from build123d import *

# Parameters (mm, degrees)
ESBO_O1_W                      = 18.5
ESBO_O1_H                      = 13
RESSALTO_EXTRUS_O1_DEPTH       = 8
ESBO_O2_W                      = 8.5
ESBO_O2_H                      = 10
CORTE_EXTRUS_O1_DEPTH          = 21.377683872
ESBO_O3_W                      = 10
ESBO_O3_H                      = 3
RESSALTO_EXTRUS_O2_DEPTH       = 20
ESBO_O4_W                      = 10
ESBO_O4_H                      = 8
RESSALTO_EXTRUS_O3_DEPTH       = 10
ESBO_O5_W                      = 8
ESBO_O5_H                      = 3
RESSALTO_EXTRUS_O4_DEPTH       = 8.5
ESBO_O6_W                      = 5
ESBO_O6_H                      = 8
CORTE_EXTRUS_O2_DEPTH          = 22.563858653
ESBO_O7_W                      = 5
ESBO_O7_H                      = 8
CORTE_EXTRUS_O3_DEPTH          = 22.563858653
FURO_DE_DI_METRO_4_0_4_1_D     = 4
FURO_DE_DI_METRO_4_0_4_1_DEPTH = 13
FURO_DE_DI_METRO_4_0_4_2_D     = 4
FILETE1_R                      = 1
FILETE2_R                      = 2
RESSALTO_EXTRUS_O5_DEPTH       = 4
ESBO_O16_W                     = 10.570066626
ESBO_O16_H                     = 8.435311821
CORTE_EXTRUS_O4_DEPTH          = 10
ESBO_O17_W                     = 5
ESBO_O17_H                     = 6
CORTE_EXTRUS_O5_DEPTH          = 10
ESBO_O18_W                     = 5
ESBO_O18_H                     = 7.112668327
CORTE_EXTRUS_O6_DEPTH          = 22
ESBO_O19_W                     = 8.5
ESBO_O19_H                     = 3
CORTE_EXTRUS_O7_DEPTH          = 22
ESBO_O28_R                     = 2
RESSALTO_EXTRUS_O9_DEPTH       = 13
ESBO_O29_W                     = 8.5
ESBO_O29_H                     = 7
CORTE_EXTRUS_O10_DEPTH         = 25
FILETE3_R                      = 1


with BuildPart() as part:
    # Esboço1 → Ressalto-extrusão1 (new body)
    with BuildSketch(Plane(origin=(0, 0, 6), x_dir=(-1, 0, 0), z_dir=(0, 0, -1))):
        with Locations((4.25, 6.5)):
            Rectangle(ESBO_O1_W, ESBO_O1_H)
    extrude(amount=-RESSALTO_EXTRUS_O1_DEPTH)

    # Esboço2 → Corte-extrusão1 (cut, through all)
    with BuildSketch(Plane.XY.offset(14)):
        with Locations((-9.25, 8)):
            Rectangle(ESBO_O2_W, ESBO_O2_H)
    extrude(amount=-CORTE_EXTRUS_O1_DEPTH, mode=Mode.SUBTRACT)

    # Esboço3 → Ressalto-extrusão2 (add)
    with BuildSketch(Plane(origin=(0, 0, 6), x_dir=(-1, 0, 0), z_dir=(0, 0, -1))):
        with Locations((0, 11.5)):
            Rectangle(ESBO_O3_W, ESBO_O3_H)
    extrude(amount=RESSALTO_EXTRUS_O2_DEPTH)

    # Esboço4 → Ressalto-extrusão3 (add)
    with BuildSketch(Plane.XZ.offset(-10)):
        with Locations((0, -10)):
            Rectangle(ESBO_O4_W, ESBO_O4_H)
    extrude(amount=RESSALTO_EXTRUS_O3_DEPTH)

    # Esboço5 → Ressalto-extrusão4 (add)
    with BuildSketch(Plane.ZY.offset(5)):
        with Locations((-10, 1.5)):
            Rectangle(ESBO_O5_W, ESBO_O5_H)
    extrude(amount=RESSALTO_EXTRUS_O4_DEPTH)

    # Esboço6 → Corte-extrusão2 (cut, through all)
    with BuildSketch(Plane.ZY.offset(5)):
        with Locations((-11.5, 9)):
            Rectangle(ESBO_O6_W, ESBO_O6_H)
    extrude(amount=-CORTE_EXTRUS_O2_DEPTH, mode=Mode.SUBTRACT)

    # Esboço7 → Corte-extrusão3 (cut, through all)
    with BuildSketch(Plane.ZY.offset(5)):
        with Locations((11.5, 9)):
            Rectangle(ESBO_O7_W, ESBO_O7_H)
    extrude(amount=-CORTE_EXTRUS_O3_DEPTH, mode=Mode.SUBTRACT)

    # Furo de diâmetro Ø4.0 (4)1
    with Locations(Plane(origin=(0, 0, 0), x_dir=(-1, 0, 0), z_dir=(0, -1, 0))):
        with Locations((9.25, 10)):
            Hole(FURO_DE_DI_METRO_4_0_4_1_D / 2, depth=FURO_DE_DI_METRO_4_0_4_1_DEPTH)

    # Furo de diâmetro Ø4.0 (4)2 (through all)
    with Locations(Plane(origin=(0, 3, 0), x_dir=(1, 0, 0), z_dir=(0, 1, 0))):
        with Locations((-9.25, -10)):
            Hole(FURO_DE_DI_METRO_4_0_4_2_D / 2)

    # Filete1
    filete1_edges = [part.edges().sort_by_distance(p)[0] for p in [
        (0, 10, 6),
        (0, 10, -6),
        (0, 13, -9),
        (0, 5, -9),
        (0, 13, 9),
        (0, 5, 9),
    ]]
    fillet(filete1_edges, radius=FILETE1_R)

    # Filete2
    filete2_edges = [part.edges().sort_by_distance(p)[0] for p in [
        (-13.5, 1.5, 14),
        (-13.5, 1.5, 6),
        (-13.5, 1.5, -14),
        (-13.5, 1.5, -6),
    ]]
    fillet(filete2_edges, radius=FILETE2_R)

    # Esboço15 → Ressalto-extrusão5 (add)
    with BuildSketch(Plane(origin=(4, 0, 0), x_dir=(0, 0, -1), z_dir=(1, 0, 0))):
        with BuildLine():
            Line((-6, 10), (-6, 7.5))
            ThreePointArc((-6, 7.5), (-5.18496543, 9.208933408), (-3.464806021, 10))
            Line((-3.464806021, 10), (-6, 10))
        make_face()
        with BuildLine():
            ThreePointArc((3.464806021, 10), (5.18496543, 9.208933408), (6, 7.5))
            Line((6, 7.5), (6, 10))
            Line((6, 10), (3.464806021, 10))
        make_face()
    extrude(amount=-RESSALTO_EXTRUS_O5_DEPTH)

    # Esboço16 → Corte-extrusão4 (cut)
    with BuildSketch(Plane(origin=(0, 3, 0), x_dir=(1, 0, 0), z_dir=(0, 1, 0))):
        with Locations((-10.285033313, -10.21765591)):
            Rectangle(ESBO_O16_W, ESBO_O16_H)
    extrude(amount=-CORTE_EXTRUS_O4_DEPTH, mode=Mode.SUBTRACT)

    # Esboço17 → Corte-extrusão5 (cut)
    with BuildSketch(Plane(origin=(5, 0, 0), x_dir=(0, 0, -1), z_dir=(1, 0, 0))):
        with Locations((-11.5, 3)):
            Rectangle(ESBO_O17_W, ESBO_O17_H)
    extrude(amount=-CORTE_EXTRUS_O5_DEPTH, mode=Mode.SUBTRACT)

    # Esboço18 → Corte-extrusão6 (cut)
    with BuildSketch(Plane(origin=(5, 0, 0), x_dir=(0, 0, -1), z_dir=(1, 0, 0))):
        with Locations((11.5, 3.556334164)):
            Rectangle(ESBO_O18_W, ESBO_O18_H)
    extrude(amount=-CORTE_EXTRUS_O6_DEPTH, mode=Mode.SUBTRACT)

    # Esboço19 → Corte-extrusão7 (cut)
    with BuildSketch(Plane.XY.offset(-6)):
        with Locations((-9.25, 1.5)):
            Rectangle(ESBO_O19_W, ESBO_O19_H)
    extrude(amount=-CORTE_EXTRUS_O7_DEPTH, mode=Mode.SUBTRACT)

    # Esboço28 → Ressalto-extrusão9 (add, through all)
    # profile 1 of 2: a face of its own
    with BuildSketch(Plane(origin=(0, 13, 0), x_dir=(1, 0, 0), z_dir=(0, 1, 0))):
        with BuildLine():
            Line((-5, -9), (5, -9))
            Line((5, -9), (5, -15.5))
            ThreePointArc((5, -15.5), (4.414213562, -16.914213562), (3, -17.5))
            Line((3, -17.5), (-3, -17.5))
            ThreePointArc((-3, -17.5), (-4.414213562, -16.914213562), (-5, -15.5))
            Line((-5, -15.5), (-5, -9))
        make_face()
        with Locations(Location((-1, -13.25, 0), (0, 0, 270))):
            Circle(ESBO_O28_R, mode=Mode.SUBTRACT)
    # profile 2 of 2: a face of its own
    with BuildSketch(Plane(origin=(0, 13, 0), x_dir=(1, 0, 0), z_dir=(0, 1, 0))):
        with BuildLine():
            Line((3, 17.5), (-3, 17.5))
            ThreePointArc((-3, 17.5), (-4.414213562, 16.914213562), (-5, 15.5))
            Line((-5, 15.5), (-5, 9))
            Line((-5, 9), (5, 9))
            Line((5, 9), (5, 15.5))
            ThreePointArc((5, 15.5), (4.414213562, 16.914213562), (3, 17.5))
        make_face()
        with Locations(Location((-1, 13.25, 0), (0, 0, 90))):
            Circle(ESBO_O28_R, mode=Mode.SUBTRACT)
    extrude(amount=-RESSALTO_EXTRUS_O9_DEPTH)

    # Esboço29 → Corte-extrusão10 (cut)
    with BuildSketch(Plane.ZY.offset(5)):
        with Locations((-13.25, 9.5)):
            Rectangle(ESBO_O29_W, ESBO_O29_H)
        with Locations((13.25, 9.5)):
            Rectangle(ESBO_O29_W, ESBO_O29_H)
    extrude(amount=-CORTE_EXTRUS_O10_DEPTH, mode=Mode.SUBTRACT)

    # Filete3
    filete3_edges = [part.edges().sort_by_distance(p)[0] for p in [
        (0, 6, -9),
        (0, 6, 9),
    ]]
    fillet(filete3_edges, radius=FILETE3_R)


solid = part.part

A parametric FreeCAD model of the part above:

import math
import FreeCAD as App
import Part
import Sketcher


def edges_at(feature, points):
    """Names of the edges that pass closest to the given points."""
    edges = feature.Shape.Edges
    near = lambda p: min(range(len(edges)), key=lambda i: edges[i].distToShape(Part.Vertex(*p))[0])
    return sorted({f"Edge{near(p) + 1}" for p in points})

doc = App.newDocument("Part")
params = doc.addObject("Spreadsheet::Sheet", "Params")
for row, (alias, value) in enumerate([
    ("sketch1_height", "13 mm"),
    ("sketch1_width", "18.5 mm"),
    ("pad1_length", "8 mm"),
    ("sketch2_height", "10 mm"),
    ("sketch2_width", "8.5 mm"),
    ("sketch3_width", "10 mm"),
    ("sketch3_height", "3 mm"),
    ("pad2_length", "20 mm"),
    ("sketch4_width", "10 mm"),
    ("sketch4_height", "8 mm"),
    ("pad3_length", "10 mm"),
    ("sketch5_width", "3 mm"),
    ("sketch5_height", "8 mm"),
    ("pad4_length", "8.5 mm"),
    ("sketch6_width", "8 mm"),
    ("sketch6_height", "5 mm"),
    ("sketch7_width", "8 mm"),
    ("sketch7_height", "5 mm"),
    ("sketch8_diameter", "4 mm"),
    ("hole_diameter", "4 mm"),
    ("hole_depth", "13 mm"),
    ("sketch9_diameter", "4 mm"),
    ("hole2_diameter", "4 mm"),
    ("fillet_radius", "1 mm"),
    ("fillet2_radius", "2 mm"),
    ("sketch10_width", "2.5 mm"),
    ("pad5_length", "4 mm"),
    ("pocket4_length", "10 mm"),
    ("sketch12_width", "6 mm"),
    ("sketch12_height", "5 mm"),
    ("pocket5_length", "10 mm"),
    ("sketch13_height", "5 mm"),
    ("pocket6_length", "22 mm"),
    ("sketch14_height", "3 mm"),
    ("sketch14_width", "8.5 mm"),
    ("pocket7_length", "22 mm"),
    ("sketch15_diameter", "4 mm"),
    ("sketch15_width", "10 mm"),
    ("sketch15_height", "6.5 mm"),
    ("pad6_length", "13 mm"),
    ("sketch16_width", "7 mm"),
    ("sketch16_height", "8.5 mm"),
    ("pocket8_length", "25 mm"),
    ("fillet3_radius", "1 mm"),
], start=1):
    params.set(f"A{row}", alias)
    params.set(f"B{row}", "=" + value)
    params.setAlias(f"B{row}", alias)

body = doc.addObject("PartDesign::Body", "Body")

sketch1 = body.newObject("Sketcher::SketchObject", "Sketch")
sketch1.AttachmentSupport = (doc.getObject("XY_Plane"), [""])
sketch1.MapMode = "FlatFace"
sketch1.AttachmentOffset = App.Placement(App.Vector(0, 0, 6), App.Rotation())
sketch1.addGeometry([
    Part.LineSegment(App.Vector(5, 13, 0), App.Vector(5, 0, 0)),
    Part.LineSegment(App.Vector(5, 0, 0), App.Vector(-14, 0, 0)),
    Part.LineSegment(App.Vector(-14, 0, 0), App.Vector(-14, 13, 0)),
    Part.LineSegment(App.Vector(-14, 13, 0), App.Vector(5, 13, 0)),
], False)
sketch1.addConstraint([
    Sketcher.Constraint("Coincident", 0, 2, 1, 1),
    Sketcher.Constraint("Coincident", 1, 2, 2, 1),
    Sketcher.Constraint("Coincident", 2, 2, 3, 1),
    Sketcher.Constraint("Coincident", 3, 2, 0, 1),
    Sketcher.Constraint("Vertical", 0),
    Sketcher.Constraint("Horizontal", 1),
    Sketcher.Constraint("Vertical", 2),
    Sketcher.Constraint("Horizontal", 3),
    Sketcher.Constraint("PointOnObject", 0, 2, -1),
    Sketcher.Constraint("DistanceY", 0, 2, 0, 1, 13.0),
    Sketcher.Constraint("DistanceX", 1, 2, 1, 1, 18.5),
    Sketcher.Constraint("DistanceX", -1, 1, 0, 2, 5.0),
])
sketch1.setExpression("Constraints[9]", "Params.sketch1_height")
sketch1.setExpression("Constraints[10]", "Params.sketch1_width")
pad1 = body.newObject("PartDesign::Pad", "Pad")
pad1.Profile = sketch1
pad1.setExpression("Length", "Params.pad1_length")

sketch2 = body.newObject("Sketcher::SketchObject", "Sketch001")
sketch2.AttachmentSupport = (doc.getObject("XY_Plane"), [""])
sketch2.MapMode = "FlatFace"
sketch2.AttachmentOffset = App.Placement(App.Vector(0, 0, 14), App.Rotation())
sketch2.addGeometry([
    Part.LineSegment(App.Vector(-14, 13, 0), App.Vector(-14, 3, 0)),
    Part.LineSegment(App.Vector(-14, 3, 0), App.Vector(-5, 3, 0)),
    Part.LineSegment(App.Vector(-5, 3, 0), App.Vector(-5, 13, 0)),
    Part.LineSegment(App.Vector(-5, 13, 0), App.Vector(-14, 13, 0)),
], False)
sketch2.addConstraint([
    Sketcher.Constraint("Coincident", 0, 2, 1, 1),
    Sketcher.Constraint("Coincident", 1, 2, 2, 1),
    Sketcher.Constraint("Coincident", 2, 2, 3, 1),
    Sketcher.Constraint("Coincident", 3, 2, 0, 1),
    Sketcher.Constraint("Vertical", 0),
    Sketcher.Constraint("Horizontal", 1),
    Sketcher.Constraint("Vertical", 2),
    Sketcher.Constraint("Horizontal", 3),
    Sketcher.Constraint("DistanceY", 0, 2, 0, 1, 10.0),
    Sketcher.Constraint("DistanceX", 1, 1, 1, 2, 8.5),
    Sketcher.Constraint("DistanceY", -1, 1, 0, 2, 3.0),
    Sketcher.Constraint("DistanceX", 1, 2, -1, 1, 5.0),
])
sketch2.setExpression("Constraints[8]", "Params.sketch2_height")
sketch2.setExpression("Constraints[9]", "Params.sketch2_width")
pocket1 = body.newObject("PartDesign::Pocket", "Pocket")
pocket1.Profile = sketch2
pocket1.Type = "ThroughAll"

sketch3 = body.newObject("Sketcher::SketchObject", "Sketch002")
sketch3.AttachmentSupport = (doc.getObject("XY_Plane"), [""])
sketch3.MapMode = "FlatFace"
sketch3.AttachmentOffset = App.Placement(App.Vector(0, 0, 6), App.Rotation())
sketch3.addGeometry([
    Part.LineSegment(App.Vector(5, 13, 0), App.Vector(5, 10, 0)),
    Part.LineSegment(App.Vector(5, 10, 0), App.Vector(-5, 10, 0)),
    Part.LineSegment(App.Vector(-5, 10, 0), App.Vector(-5, 13, 0)),
    Part.LineSegment(App.Vector(-5, 13, 0), App.Vector(5, 13, 0)),
], False)
sketch3.addConstraint([
    Sketcher.Constraint("Coincident", 0, 2, 1, 1),
    Sketcher.Constraint("Coincident", 1, 2, 2, 1),
    Sketcher.Constraint("Coincident", 2, 2, 3, 1),
    Sketcher.Constraint("Coincident", 3, 2, 0, 1),
    Sketcher.Constraint("Vertical", 0),
    Sketcher.Constraint("Horizontal", 1),
    Sketcher.Constraint("Vertical", 2),
    Sketcher.Constraint("Horizontal", 3),
    Sketcher.Constraint("DistanceX", 1, 2, 1, 1, 10.0),
    Sketcher.Constraint("DistanceY", 0, 2, 0, 1, 3.0),
    Sketcher.Constraint("DistanceX", -1, 1, 0, 2, 5.0),
    Sketcher.Constraint("DistanceY", -1, 1, 0, 2, 10.0),
])
sketch3.setExpression("Constraints[8]", "Params.sketch3_width")
sketch3.setExpression("Constraints[9]", "Params.sketch3_height")
pad2 = body.newObject("PartDesign::Pad", "Pad001")
pad2.Profile = sketch3
pad2.setExpression("Length", "Params.pad2_length")
pad2.Reversed = True

sketch4 = body.newObject("Sketcher::SketchObject", "Sketch003")
sketch4.AttachmentSupport = (doc.getObject("XZ_Plane"), [""])
sketch4.MapMode = "FlatFace"
sketch4.AttachmentOffset = App.Placement(App.Vector(0, 0, -10), App.Rotation())
sketch4.addGeometry([
    Part.LineSegment(App.Vector(-5, -6, 0), App.Vector(-5, -14, 0)),
    Part.LineSegment(App.Vector(-5, -14, 0), App.Vector(5, -14, 0)),
    Part.LineSegment(App.Vector(5, -14, 0), App.Vector(5, -6, 0)),
    Part.LineSegment(App.Vector(5, -6, 0), App.Vector(-5, -6, 0)),
], False)
sketch4.addConstraint([
    Sketcher.Constraint("Coincident", 0, 2, 1, 1),
    Sketcher.Constraint("Coincident", 1, 2, 2, 1),
    Sketcher.Constraint("Coincident", 2, 2, 3, 1),
    Sketcher.Constraint("Coincident", 3, 2, 0, 1),
    Sketcher.Constraint("Vertical", 0),
    Sketcher.Constraint("Horizontal", 1),
    Sketcher.Constraint("Vertical", 2),
    Sketcher.Constraint("Horizontal", 3),
    Sketcher.Constraint("DistanceX", 1, 1, 1, 2, 10.0),
    Sketcher.Constraint("DistanceY", 0, 2, 0, 1, 8.0),
    Sketcher.Constraint("DistanceX", 0, 2, -1, 1, 5.0),
    Sketcher.Constraint("DistanceY", 0, 2, -1, 1, 14.0),
])
sketch4.setExpression("Constraints[8]", "Params.sketch4_width")
sketch4.setExpression("Constraints[9]", "Params.sketch4_height")
pad3 = body.newObject("PartDesign::Pad", "Pad002")
pad3.Profile = sketch4
pad3.setExpression("Length", "Params.pad3_length")

sketch5 = body.newObject("Sketcher::SketchObject", "Sketch004")
sketch5.AttachmentSupport = (doc.getObject("YZ_Plane"), [""])
sketch5.MapMode = "FlatFace"
sketch5.AttachmentOffset = App.Placement(App.Vector(0, 0, -5), App.Rotation())
sketch5.addGeometry([
    Part.LineSegment(App.Vector(3, -14, 0), App.Vector(0, -14, 0)),
    Part.LineSegment(App.Vector(0, -14, 0), App.Vector(0, -6, 0)),
    Part.LineSegment(App.Vector(0, -6, 0), App.Vector(3, -6, 0)),
    Part.LineSegment(App.Vector(3, -6, 0), App.Vector(3, -14, 0)),
], False)
sketch5.addConstraint([
    Sketcher.Constraint("Coincident", 0, 2, 1, 1),
    Sketcher.Constraint("Coincident", 1, 2, 2, 1),
    Sketcher.Constraint("Coincident", 2, 2, 3, 1),
    Sketcher.Constraint("Coincident", 3, 2, 0, 1),
    Sketcher.Constraint("Horizontal", 0),
    Sketcher.Constraint("Vertical", 1),
    Sketcher.Constraint("Horizontal", 2),
    Sketcher.Constraint("Vertical", 3),
    Sketcher.Constraint("PointOnObject", 0, 2, -2),
    Sketcher.Constraint("DistanceX", 0, 2, 0, 1, 3.0),
    Sketcher.Constraint("DistanceY", 1, 1, 1, 2, 8.0),
    Sketcher.Constraint("DistanceY", 0, 2, -1, 1, 14.0),
])
sketch5.setExpression("Constraints[9]", "Params.sketch5_width")
sketch5.setExpression("Constraints[10]", "Params.sketch5_height")
pad4 = body.newObject("PartDesign::Pad", "Pad003")
pad4.Profile = sketch5
pad4.setExpression("Length", "Params.pad4_length")
pad4.Reversed = True

sketch6 = body.newObject("Sketcher::SketchObject", "Sketch005")
sketch6.AttachmentSupport = (doc.getObject("YZ_Plane"), [""])
sketch6.MapMode = "FlatFace"
sketch6.AttachmentOffset = App.Placement(App.Vector(0, 0, -5), App.Rotation())
sketch6.addGeometry([
    Part.LineSegment(App.Vector(13, -14, 0), App.Vector(5, -14, 0)),
    Part.LineSegment(App.Vector(5, -14, 0), App.Vector(5, -9, 0)),
    Part.LineSegment(App.Vector(5, -9, 0), App.Vector(13, -9, 0)),
    Part.LineSegment(App.Vector(13, -9, 0), App.Vector(13, -14, 0)),
], False)
sketch6.addConstraint([
    Sketcher.Constraint("Coincident", 0, 2, 1, 1),
    Sketcher.Constraint("Coincident", 1, 2, 2, 1),
    Sketcher.Constraint("Coincident", 2, 2, 3, 1),
    Sketcher.Constraint("Coincident", 3, 2, 0, 1),
    Sketcher.Constraint("Horizontal", 0),
    Sketcher.Constraint("Vertical", 1),
    Sketcher.Constraint("Horizontal", 2),
    Sketcher.Constraint("Vertical", 3),
    Sketcher.Constraint("DistanceX", 0, 2, 0, 1, 8.0),
    Sketcher.Constraint("DistanceY", 1, 1, 1, 2, 5.0),
    Sketcher.Constraint("DistanceX", -1, 1, 0, 2, 5.0),
    Sketcher.Constraint("DistanceY", 0, 2, -1, 1, 14.0),
])
sketch6.setExpression("Constraints[8]", "Params.sketch6_width")
sketch6.setExpression("Constraints[9]", "Params.sketch6_height")
pocket2 = body.newObject("PartDesign::Pocket", "Pocket001")
pocket2.Profile = sketch6
pocket2.Type = "ThroughAll"
pocket2.Reversed = True

sketch7 = body.newObject("Sketcher::SketchObject", "Sketch006")
sketch7.AttachmentSupport = (doc.getObject("YZ_Plane"), [""])
sketch7.MapMode = "FlatFace"
sketch7.AttachmentOffset = App.Placement(App.Vector(0, 0, -5), App.Rotation())
sketch7.addGeometry([
    Part.LineSegment(App.Vector(13, 9, 0), App.Vector(5, 9, 0)),
    Part.LineSegment(App.Vector(5, 9, 0), App.Vector(5, 14, 0)),
    Part.LineSegment(App.Vector(5, 14, 0), App.Vector(13, 14, 0)),
    Part.LineSegment(App.Vector(13, 14, 0), App.Vector(13, 9, 0)),
], False)
sketch7.addConstraint([
    Sketcher.Constraint("Coincident", 0, 2, 1, 1),
    Sketcher.Constraint("Coincident", 1, 2, 2, 1),
    Sketcher.Constraint("Coincident", 2, 2, 3, 1),
    Sketcher.Constraint("Coincident", 3, 2, 0, 1),
    Sketcher.Constraint("Horizontal", 0),
    Sketcher.Constraint("Vertical", 1),
    Sketcher.Constraint("Horizontal", 2),
    Sketcher.Constraint("Vertical", 3),
    Sketcher.Constraint("DistanceX", 0, 2, 0, 1, 8.0),
    Sketcher.Constraint("DistanceY", 1, 1, 1, 2, 5.0),
    Sketcher.Constraint("DistanceX", -1, 1, 0, 2, 5.0),
    Sketcher.Constraint("DistanceY", -1, 1, 0, 2, 9.0),
])
sketch7.setExpression("Constraints[8]", "Params.sketch7_width")
sketch7.setExpression("Constraints[9]", "Params.sketch7_height")
pocket3 = body.newObject("PartDesign::Pocket", "Pocket002")
pocket3.Profile = sketch7
pocket3.Type = "ThroughAll"
pocket3.Reversed = True

sketch8 = body.newObject("Sketcher::SketchObject", "Sketch007")
sketch8.AttachmentSupport = (doc.getObject("XZ_Plane"), [""])
sketch8.MapMode = "FlatFace"
sketch8.addGeometry(Part.Circle(App.Vector(-9.2, -10, 0), App.Vector(0, 0, 1), 2), False)
sketch8.addConstraint([
    Sketcher.Constraint("Diameter", 0, 4.0),
    Sketcher.Constraint("DistanceY", 0, 3, -1, 1, 10.0),
    Sketcher.Constraint("DistanceX", 0, 3, -1, 1, 9.25),
])
sketch8.setExpression("Constraints[0]", "Params.sketch8_diameter")
doc.recompute()
hole = body.newObject("PartDesign::Hole", "Hole")
hole.Profile = sketch8
hole.ThreadType = "None"
hole.setExpression("Diameter", "Params.hole_diameter")
hole.DepthType = "Dimension"
hole.setExpression("Depth", "Params.hole_depth")
hole.DrillPoint = "Flat"

sketch9 = body.newObject("Sketcher::SketchObject", "Sketch008")
sketch9.AttachmentSupport = (doc.getObject("XZ_Plane"), [""])
sketch9.MapMode = "FlatFace"
sketch9.AttachmentOffset = App.Placement(App.Vector(0, 0, -3), App.Rotation())
sketch9.addGeometry(Part.Circle(App.Vector(-9.2, 10, 0), App.Vector(0, 0, 1), 2), False)
sketch9.addConstraint([
    Sketcher.Constraint("Diameter", 0, 4.0),
    Sketcher.Constraint("DistanceY", -1, 1, 0, 3, 10.0),
    Sketcher.Constraint("DistanceX", 0, 3, -1, 1, 9.25),
])
sketch9.setExpression("Constraints[0]", "Params.sketch9_diameter")
doc.recompute()
hole2 = body.newObject("PartDesign::Hole", "Hole001")
hole2.Profile = sketch9
hole2.ThreadType = "None"
hole2.setExpression("Diameter", "Params.hole2_diameter")
hole2.DepthType = "ThroughAll"
hole2.Reversed = True
doc.recompute()

fillet = body.newObject("PartDesign::Fillet", "Fillet")
fillet.Base = (hole2, edges_at(hole2, [
    (0, 10, 6),
    (0, 10, -6),
    (0, 13, -9),
    (0, 5, -9),
    (0, 13, 9),
    (0, 5, 9),
]))
fillet.setExpression("Radius", "Params.fillet_radius")
doc.recompute()

fillet2 = body.newObject("PartDesign::Fillet", "Fillet001")
fillet2.Base = (fillet, edges_at(fillet, [
    (-13.5, 1.5, 14),
    (-13.5, 1.5, 6),
    (-13.5, 1.5, -14),
    (-13.5, 1.5, -6),
]))
fillet2.setExpression("Radius", "Params.fillet2_radius")

sketch10 = body.newObject("Sketcher::SketchObject", "Sketch009")
sketch10.AttachmentSupport = (doc.getObject("YZ_Plane"), [""])
sketch10.MapMode = "FlatFace"
sketch10.AttachmentOffset = App.Placement(App.Vector(0, 0, 4), App.Rotation())
sketch10.addGeometry([
    Part.LineSegment(App.Vector(10, 6, 0), App.Vector(7.5, 6, 0)),
    Part.ArcOfCircle(Part.Circle(App.Vector(7.2, 3.2, 0), App.Vector(0, 0, 1), 2.8), math.radians(5), math.radians(84)),
    Part.LineSegment(App.Vector(10, 3.5, 0), App.Vector(10, 6, 0)),
    Part.ArcOfCircle(Part.Circle(App.Vector(7.2, -3.2, 0), App.Vector(0, 0, 1), 2.8), math.radians(-84), math.radians(-5)),
    Part.LineSegment(App.Vector(7.5, -6, 0), App.Vector(10, -6, 0)),
    Part.LineSegment(App.Vector(10, -6, 0), App.Vector(10, -3.5, 0)),
], False)
sketch10.addConstraint([
    Sketcher.Constraint("Coincident", 0, 2, 1, 2),
    Sketcher.Constraint("Coincident", 1, 1, 2, 1),
    Sketcher.Constraint("Coincident", 2, 2, 0, 1),
    Sketcher.Constraint("Coincident", 3, 1, 4, 1),
    Sketcher.Constraint("Coincident", 4, 2, 5, 1),
    Sketcher.Constraint("Coincident", 5, 2, 3, 2),
    Sketcher.Constraint("Horizontal", 0),
    Sketcher.Constraint("Vertical", 2),
    Sketcher.Constraint("Horizontal", 4),
    Sketcher.Constraint("Vertical", 5),
    Sketcher.Constraint("Equal", 1, 3),
    Sketcher.Constraint("Symmetric", 1, 3, 3, 3, -1),
    Sketcher.Constraint("Symmetric", 2, 2, 4, 2, -1),
    Sketcher.Constraint("DistanceX", 0, 2, 0, 1, 2.5),
    Sketcher.Constraint("DistanceY", -1, 1, 0, 2, 6.0),
    Sketcher.Constraint("DistanceX", -1, 1, 1, 1, 10.0),
    Sketcher.Constraint("Radius", 1, 2.780845),
    Sketcher.Constraint("DistanceY", 2, 1, 2, 2, 2.535194),
])
sketch10.setExpression("Constraints[13]", "Params.sketch10_width")
pad5 = body.newObject("PartDesign::Pad", "Pad004")
pad5.Profile = sketch10
pad5.setExpression("Length", "Params.pad5_length")
pad5.Reversed = True

sketch11 = body.newObject("Sketcher::SketchObject", "Sketch010")
sketch11.AttachmentSupport = (doc.getObject("XZ_Plane"), [""])
sketch11.MapMode = "FlatFace"
sketch11.AttachmentOffset = App.Placement(App.Vector(0, 0, -3), App.Rotation())
sketch11.addGeometry([
    Part.LineSegment(App.Vector(-16, 6, 0), App.Vector(-16, 14, 0)),
    Part.LineSegment(App.Vector(-16, 14, 0), App.Vector(-5, 14, 0)),
    Part.LineSegment(App.Vector(-5, 14, 0), App.Vector(-5, 6, 0)),
    Part.LineSegment(App.Vector(-5, 6, 0), App.Vector(-16, 6, 0)),
], False)
sketch11.addConstraint([
    Sketcher.Constraint("Coincident", 0, 2, 1, 1),
    Sketcher.Constraint("Coincident", 1, 2, 2, 1),
    Sketcher.Constraint("Coincident", 2, 2, 3, 1),
    Sketcher.Constraint("Coincident", 3, 2, 0, 1),
    Sketcher.Constraint("Vertical", 0),
    Sketcher.Constraint("Horizontal", 1),
    Sketcher.Constraint("Vertical", 2),
    Sketcher.Constraint("Horizontal", 3),
    Sketcher.Constraint("DistanceX", 1, 2, -1, 1, 5.0),
    Sketcher.Constraint("DistanceY", -1, 1, 2, 2, 6.0),
    Sketcher.Constraint("DistanceY", 0, 1, 0, 2, 8.435312),
    Sketcher.Constraint("DistanceX", 1, 1, 1, 2, 10.570067),
])
pocket4 = body.newObject("PartDesign::Pocket", "Pocket003")
pocket4.Profile = sketch11
pocket4.setExpression("Length", "Params.pocket4_length")
pocket4.Reversed = True

sketch12 = body.newObject("Sketcher::SketchObject", "Sketch011")
sketch12.AttachmentSupport = (doc.getObject("YZ_Plane"), [""])
sketch12.MapMode = "FlatFace"
sketch12.AttachmentOffset = App.Placement(App.Vector(0, 0, 5), App.Rotation())
sketch12.addGeometry([
    Part.LineSegment(App.Vector(6, 14, 0), App.Vector(0, 14, 0)),
    Part.LineSegment(App.Vector(0, 14, 0), App.Vector(0, 9, 0)),
    Part.LineSegment(App.Vector(0, 9, 0), App.Vector(6, 9, 0)),
    Part.LineSegment(App.Vector(6, 9, 0), App.Vector(6, 14, 0)),
], False)
sketch12.addConstraint([
    Sketcher.Constraint("Coincident", 0, 2, 1, 1),
    Sketcher.Constraint("Coincident", 1, 2, 2, 1),
    Sketcher.Constraint("Coincident", 2, 2, 3, 1),
    Sketcher.Constraint("Coincident", 3, 2, 0, 1),
    Sketcher.Constraint("Horizontal", 0),
    Sketcher.Constraint("Vertical", 1),
    Sketcher.Constraint("Horizontal", 2),
    Sketcher.Constraint("Vertical", 3),
    Sketcher.Constraint("PointOnObject", 0, 2, -2),
    Sketcher.Constraint("DistanceX", 0, 2, 0, 1, 6.0),
    Sketcher.Constraint("DistanceY", 1, 2, 1, 1, 5.0),
    Sketcher.Constraint("DistanceY", -1, 1, 0, 2, 14.0),
])
sketch12.setExpression("Constraints[9]", "Params.sketch12_width")
sketch12.setExpression("Constraints[10]", "Params.sketch12_height")
pocket5 = body.newObject("PartDesign::Pocket", "Pocket004")
pocket5.Profile = sketch12
pocket5.setExpression("Length", "Params.pocket5_length")

sketch13 = body.newObject("Sketcher::SketchObject", "Sketch012")
sketch13.AttachmentSupport = (doc.getObject("YZ_Plane"), [""])
sketch13.MapMode = "FlatFace"
sketch13.AttachmentOffset = App.Placement(App.Vector(0, 0, 5), App.Rotation())
sketch13.addGeometry([
    Part.LineSegment(App.Vector(7, -9, 0), App.Vector(0, -9, 0)),
    Part.LineSegment(App.Vector(0, -9, 0), App.Vector(0, -14, 0)),
    Part.LineSegment(App.Vector(0, -14, 0), App.Vector(7, -14, 0)),
    Part.LineSegment(App.Vector(7, -14, 0), App.Vector(7, -9, 0)),
], False)
sketch13.addConstraint([
    Sketcher.Constraint("Coincident", 0, 2, 1, 1),
    Sketcher.Constraint("Coincident", 1, 2, 2, 1),
    Sketcher.Constraint("Coincident", 2, 2, 3, 1),
    Sketcher.Constraint("Coincident", 3, 2, 0, 1),
    Sketcher.Constraint("Horizontal", 0),
    Sketcher.Constraint("Vertical", 1),
    Sketcher.Constraint("Horizontal", 2),
    Sketcher.Constraint("Vertical", 3),
    Sketcher.Constraint("PointOnObject", 0, 2, -2),
    Sketcher.Constraint("DistanceY", 1, 2, 1, 1, 5.0),
    Sketcher.Constraint("DistanceY", 0, 2, -1, 1, 9.0),
    Sketcher.Constraint("DistanceX", 0, 2, 0, 1, 7.112668),
])
sketch13.setExpression("Constraints[9]", "Params.sketch13_height")
pocket6 = body.newObject("PartDesign::Pocket", "Pocket005")
pocket6.Profile = sketch13
pocket6.setExpression("Length", "Params.pocket6_length")

sketch14 = body.newObject("Sketcher::SketchObject", "Sketch013")
sketch14.AttachmentSupport = (doc.getObject("XY_Plane"), [""])
sketch14.MapMode = "FlatFace"
sketch14.AttachmentOffset = App.Placement(App.Vector(0, 0, -6), App.Rotation())
sketch14.addGeometry([
    Part.LineSegment(App.Vector(-13.5, 3, 0), App.Vector(-13.5, 0, 0)),
    Part.LineSegment(App.Vector(-13.5, 0, 0), App.Vector(-5, 0, 0)),
    Part.LineSegment(App.Vector(-5, 0, 0), App.Vector(-5, 3, 0)),
    Part.LineSegment(App.Vector(-5, 3, 0), App.Vector(-13.5, 3, 0)),
], False)
sketch14.addConstraint([
    Sketcher.Constraint("Coincident", 0, 2, 1, 1),
    Sketcher.Constraint("Coincident", 1, 2, 2, 1),
    Sketcher.Constraint("Coincident", 2, 2, 3, 1),
    Sketcher.Constraint("Coincident", 3, 2, 0, 1),
    Sketcher.Constraint("Vertical", 0),
    Sketcher.Constraint("Horizontal", 1),
    Sketcher.Constraint("Vertical", 2),
    Sketcher.Constraint("Horizontal", 3),
    Sketcher.Constraint("PointOnObject", 0, 2, -1),
    Sketcher.Constraint("DistanceY", 0, 2, 0, 1, 3.0),
    Sketcher.Constraint("DistanceX", 1, 1, 1, 2, 8.5),
    Sketcher.Constraint("DistanceX", 1, 2, -1, 1, 5.0),
])
sketch14.setExpression("Constraints[9]", "Params.sketch14_height")
sketch14.setExpression("Constraints[10]", "Params.sketch14_width")
pocket7 = body.newObject("PartDesign::Pocket", "Pocket006")
pocket7.Profile = sketch14
pocket7.setExpression("Length", "Params.pocket7_length")

sketch15 = body.newObject("Sketcher::SketchObject", "Sketch014")
sketch15.AttachmentSupport = (doc.getObject("XZ_Plane"), [""])
sketch15.MapMode = "FlatFace"
sketch15.AttachmentOffset = App.Placement(App.Vector(0, 0, -13), App.Rotation())
sketch15.addGeometry([
    Part.LineSegment(App.Vector(5, 9, 0), App.Vector(-5, 9, 0)),
    Part.LineSegment(App.Vector(-5, 9, 0), App.Vector(-5, 15.5, 0)),
    Part.ArcOfCircle(Part.Circle(App.Vector(-3, 15.5, 0), App.Vector(0, 0, 1), 2), math.radians(90), math.radians(180)),
    Part.LineSegment(App.Vector(-3, 17.5, 0), App.Vector(3, 17.5, 0)),
    Part.ArcOfCircle(Part.Circle(App.Vector(3, 15.5, 0), App.Vector(0, 0, 1), 2), math.radians(0), math.radians(90)),
    Part.LineSegment(App.Vector(5, 15.5, 0), App.Vector(5, 9, 0)),
    Part.Circle(App.Vector(-1, 13.2, 0), App.Vector(0, 0, 1), 2),
    Part.LineSegment(App.Vector(3, -17.5, 0), App.Vector(-3, -17.5, 0)),
    Part.ArcOfCircle(Part.Circle(App.Vector(-3, -15.5, 0), App.Vector(0, 0, 1), 2), math.radians(-180), math.radians(-90)),
    Part.LineSegment(App.Vector(-5, -15.5, 0), App.Vector(-5, -9, 0)),
    Part.LineSegment(App.Vector(-5, -9, 0), App.Vector(5, -9, 0)),
    Part.LineSegment(App.Vector(5, -9, 0), App.Vector(5, -15.5, 0)),
    Part.ArcOfCircle(Part.Circle(App.Vector(3, -15.5, 0), App.Vector(0, 0, 1), 2), math.radians(-90), math.radians(0)),
    Part.Circle(App.Vector(-1, -13.2, 0), App.Vector(0, 0, 1), 2),
], False)
sketch15.addConstraint([
    Sketcher.Constraint("Coincident", 0, 2, 1, 1),
    Sketcher.Constraint("Tangent", 1, 2, 2, 2),
    Sketcher.Constraint("Tangent", 2, 1, 3, 1),
    Sketcher.Constraint("Tangent", 3, 2, 4, 2),
    Sketcher.Constraint("Tangent", 4, 1, 5, 1),
    Sketcher.Constraint("Coincident", 5, 2, 0, 1),
    Sketcher.Constraint("Tangent", 7, 2, 8, 2),
    Sketcher.Constraint("Tangent", 8, 1, 9, 1),
    Sketcher.Constraint("Coincident", 9, 2, 10, 1),
    Sketcher.Constraint("Coincident", 10, 2, 11, 1),
    Sketcher.Constraint("Tangent", 11, 2, 12, 2),
    Sketcher.Constraint("Tangent", 12, 1, 7, 1),
    Sketcher.Constraint("Horizontal", 0),
    Sketcher.Constraint("Vertical", 1),
    Sketcher.Constraint("Horizontal", 3),
    Sketcher.Constraint("Vertical", 5),
    Sketcher.Constraint("Horizontal", 7),
    Sketcher.Constraint("Vertical", 9),
    Sketcher.Constraint("Horizontal", 10),
    Sketcher.Constraint("Vertical", 11),
    Sketcher.Constraint("Equal", 2, 4),
    Sketcher.Constraint("Equal", 4, 6),
    Sketcher.Constraint("Equal", 6, 8),
    Sketcher.Constraint("Equal", 8, 12),
    Sketcher.Constraint("Equal", 12, 13),
    Sketcher.Constraint("Symmetric", 4, 3, 8, 3, -1, 1),
    Sketcher.Constraint("Symmetric", 0, 2, 10, 2, -1, 1),
    Sketcher.Constraint("Symmetric", 6, 3, 13, 3, -1),
    Sketcher.Constraint("Vertical", 2, 3, 8, 3),
    Sketcher.Constraint("Diameter", 6, 4.0),
    Sketcher.Constraint("DistanceX", 0, 2, 0, 1, 10.0),
    Sketcher.Constraint("DistanceY", 1, 1, 1, 2, 6.5),
    Sketcher.Constraint("DistanceX", 6, 3, -1, 1, 1.0),
    Sketcher.Constraint("DistanceY", -1, 1, 0, 2, 9.0),
    Sketcher.Constraint("DistanceY", 13, 3, 6, 3, 26.5),
])
sketch15.setExpression("Constraints[29]", "Params.sketch15_diameter")
sketch15.setExpression("Constraints[30]", "Params.sketch15_width")
sketch15.setExpression("Constraints[31]", "Params.sketch15_height")
pad6 = body.newObject("PartDesign::Pad", "Pad005")
pad6.Profile = sketch15
pad6.setExpression("Length", "Params.pad6_length")

sketch16 = body.newObject("Sketcher::SketchObject", "Sketch015")
sketch16.AttachmentSupport = (doc.getObject("YZ_Plane"), [""])
sketch16.MapMode = "FlatFace"
sketch16.AttachmentOffset = App.Placement(App.Vector(0, 0, -5), App.Rotation())
sketch16.addGeometry([
    Part.LineSegment(App.Vector(13, -18, 0), App.Vector(6, -18, 0)),
    Part.LineSegment(App.Vector(6, -18, 0), App.Vector(6, -9, 0)),
    Part.LineSegment(App.Vector(6, -9, 0), App.Vector(13, -9, 0)),
    Part.LineSegment(App.Vector(13, -9, 0), App.Vector(13, -18, 0)),
    Part.LineSegment(App.Vector(13, 9, 0), App.Vector(6, 9, 0)),
    Part.LineSegment(App.Vector(6, 9, 0), App.Vector(6, 18, 0)),
    Part.LineSegment(App.Vector(6, 18, 0), App.Vector(13, 18, 0)),
    Part.LineSegment(App.Vector(13, 18, 0), App.Vector(13, 9, 0)),
], False)
sketch16.addConstraint([
    Sketcher.Constraint("Coincident", 0, 2, 1, 1),
    Sketcher.Constraint("Coincident", 1, 2, 2, 1),
    Sketcher.Constraint("Coincident", 2, 2, 3, 1),
    Sketcher.Constraint("Coincident", 3, 2, 0, 1),
    Sketcher.Constraint("Coincident", 4, 2, 5, 1),
    Sketcher.Constraint("Coincident", 5, 2, 6, 1),
    Sketcher.Constraint("Coincident", 6, 2, 7, 1),
    Sketcher.Constraint("Coincident", 7, 2, 4, 1),
    Sketcher.Constraint("Horizontal", 0),
    Sketcher.Constraint("Vertical", 1),
    Sketcher.Constraint("Horizontal", 2),
    Sketcher.Constraint("Vertical", 3),
    Sketcher.Constraint("Horizontal", 4),
    Sketcher.Constraint("Vertical", 5),
    Sketcher.Constraint("Horizontal", 6),
    Sketcher.Constraint("Vertical", 7),
    Sketcher.Constraint("Symmetric", 1, 2, 4, 2, -1),
    Sketcher.Constraint("Symmetric", 3, 2, 6, 2, -1),
    Sketcher.Constraint("DistanceX", 0, 2, 0, 1, 7.0),
    Sketcher.Constraint("DistanceY", 1, 1, 1, 2, 8.5),
    Sketcher.Constraint("DistanceX", -1, 1, 0, 2, 6.0),
    Sketcher.Constraint("DistanceY", 1, 2, -1, 1, 9.0),
])
sketch16.setExpression("Constraints[18]", "Params.sketch16_width")
sketch16.setExpression("Constraints[19]", "Params.sketch16_height")
pocket8 = body.newObject("PartDesign::Pocket", "Pocket007")
pocket8.Profile = sketch16
pocket8.setExpression("Length", "Params.pocket8_length")
pocket8.Reversed = True
doc.recompute()

fillet3 = body.newObject("PartDesign::Fillet", "Fillet002")
fillet3.Base = (pocket8, edges_at(pocket8, [(0, 6, -9), (0, 6, 9)]))
fillet3.setExpression("Radius", "Params.fillet3_radius")

doc.recompute()
